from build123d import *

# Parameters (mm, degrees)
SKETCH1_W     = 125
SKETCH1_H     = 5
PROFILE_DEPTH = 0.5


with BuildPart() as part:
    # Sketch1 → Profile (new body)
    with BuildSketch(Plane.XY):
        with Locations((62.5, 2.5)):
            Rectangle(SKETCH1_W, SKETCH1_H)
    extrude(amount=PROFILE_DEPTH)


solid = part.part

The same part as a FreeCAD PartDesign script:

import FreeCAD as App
import Part
import Sketcher
from FreeCAD import Vector

doc = App.newDocument("Part")
params = doc.addObject("Spreadsheet::Sheet", "Params")
for row, (alias, value) in enumerate([
    ("sketch1_width", "125 mm"),
    ("sketch1_height", "5 mm"),
    ("pad1_length", "0.5 mm"),
], start=1):
    params.set(f"A{row}", alias)
    params.set(f"B{row}", "=" + value)
    params.setAlias(f"B{row}", alias)

body = doc.addObject("PartDesign::Body", "Body")

sketch1 = doc.addObject("Sketcher::SketchObject", "Sketch")
body.addObject(sketch1)
sketch1.AttachmentSupport = (doc.XY_Plane, [""])
sketch1.MapMode = "FlatFace"
sketch1.addGeometry(Part.LineSegment(Vector(0, 5, 0), Vector(0, 0, 0)), False)
sketch1.addGeometry(Part.LineSegment(Vector(0, 0, 0), Vector(125, 0, 0)), False)
sketch1.addGeometry(Part.LineSegment(Vector(125, 0, 0), Vector(125, 5, 0)), False)
sketch1.addGeometry(Part.LineSegment(Vector(125, 5, 0), Vector(0, 5, 0)), False)
sketch1.addConstraint(Sketcher.Constraint("Coincident", 0, 2, 1, 1))
sketch1.addConstraint(Sketcher.Constraint("Coincident", 1, 2, 2, 1))
sketch1.addConstraint(Sketcher.Constraint("Coincident", 2, 2, 3, 1))
sketch1.addConstraint(Sketcher.Constraint("Coincident", 3, 2, 0, 1))
sketch1.addConstraint(Sketcher.Constraint("Vertical", 0))
sketch1.addConstraint(Sketcher.Constraint("Horizontal", 1))
sketch1.addConstraint(Sketcher.Constraint("Vertical", 2))
sketch1.addConstraint(Sketcher.Constraint("Horizontal", 3))
sketch1.addConstraint(Sketcher.Constraint("Coincident", 0, 2, -1, 1))
sketch1.addConstraint(Sketcher.Constraint("DistanceX", 1, 1, 1, 2, 125.0))
sketch1.addConstraint(Sketcher.Constraint("DistanceY", 0, 2, 0, 1, 5.0))
sketch1.setExpression("Constraints[9]", "Params.sketch1_width")
sketch1.setExpression("Constraints[10]", "Params.sketch1_height")
pad1 = doc.addObject("PartDesign::Pad", "Pad")
body.addObject(pad1)
pad1.Profile = sketch1
pad1.setExpression("Length", "Params.pad1_length")

doc.recompute()
